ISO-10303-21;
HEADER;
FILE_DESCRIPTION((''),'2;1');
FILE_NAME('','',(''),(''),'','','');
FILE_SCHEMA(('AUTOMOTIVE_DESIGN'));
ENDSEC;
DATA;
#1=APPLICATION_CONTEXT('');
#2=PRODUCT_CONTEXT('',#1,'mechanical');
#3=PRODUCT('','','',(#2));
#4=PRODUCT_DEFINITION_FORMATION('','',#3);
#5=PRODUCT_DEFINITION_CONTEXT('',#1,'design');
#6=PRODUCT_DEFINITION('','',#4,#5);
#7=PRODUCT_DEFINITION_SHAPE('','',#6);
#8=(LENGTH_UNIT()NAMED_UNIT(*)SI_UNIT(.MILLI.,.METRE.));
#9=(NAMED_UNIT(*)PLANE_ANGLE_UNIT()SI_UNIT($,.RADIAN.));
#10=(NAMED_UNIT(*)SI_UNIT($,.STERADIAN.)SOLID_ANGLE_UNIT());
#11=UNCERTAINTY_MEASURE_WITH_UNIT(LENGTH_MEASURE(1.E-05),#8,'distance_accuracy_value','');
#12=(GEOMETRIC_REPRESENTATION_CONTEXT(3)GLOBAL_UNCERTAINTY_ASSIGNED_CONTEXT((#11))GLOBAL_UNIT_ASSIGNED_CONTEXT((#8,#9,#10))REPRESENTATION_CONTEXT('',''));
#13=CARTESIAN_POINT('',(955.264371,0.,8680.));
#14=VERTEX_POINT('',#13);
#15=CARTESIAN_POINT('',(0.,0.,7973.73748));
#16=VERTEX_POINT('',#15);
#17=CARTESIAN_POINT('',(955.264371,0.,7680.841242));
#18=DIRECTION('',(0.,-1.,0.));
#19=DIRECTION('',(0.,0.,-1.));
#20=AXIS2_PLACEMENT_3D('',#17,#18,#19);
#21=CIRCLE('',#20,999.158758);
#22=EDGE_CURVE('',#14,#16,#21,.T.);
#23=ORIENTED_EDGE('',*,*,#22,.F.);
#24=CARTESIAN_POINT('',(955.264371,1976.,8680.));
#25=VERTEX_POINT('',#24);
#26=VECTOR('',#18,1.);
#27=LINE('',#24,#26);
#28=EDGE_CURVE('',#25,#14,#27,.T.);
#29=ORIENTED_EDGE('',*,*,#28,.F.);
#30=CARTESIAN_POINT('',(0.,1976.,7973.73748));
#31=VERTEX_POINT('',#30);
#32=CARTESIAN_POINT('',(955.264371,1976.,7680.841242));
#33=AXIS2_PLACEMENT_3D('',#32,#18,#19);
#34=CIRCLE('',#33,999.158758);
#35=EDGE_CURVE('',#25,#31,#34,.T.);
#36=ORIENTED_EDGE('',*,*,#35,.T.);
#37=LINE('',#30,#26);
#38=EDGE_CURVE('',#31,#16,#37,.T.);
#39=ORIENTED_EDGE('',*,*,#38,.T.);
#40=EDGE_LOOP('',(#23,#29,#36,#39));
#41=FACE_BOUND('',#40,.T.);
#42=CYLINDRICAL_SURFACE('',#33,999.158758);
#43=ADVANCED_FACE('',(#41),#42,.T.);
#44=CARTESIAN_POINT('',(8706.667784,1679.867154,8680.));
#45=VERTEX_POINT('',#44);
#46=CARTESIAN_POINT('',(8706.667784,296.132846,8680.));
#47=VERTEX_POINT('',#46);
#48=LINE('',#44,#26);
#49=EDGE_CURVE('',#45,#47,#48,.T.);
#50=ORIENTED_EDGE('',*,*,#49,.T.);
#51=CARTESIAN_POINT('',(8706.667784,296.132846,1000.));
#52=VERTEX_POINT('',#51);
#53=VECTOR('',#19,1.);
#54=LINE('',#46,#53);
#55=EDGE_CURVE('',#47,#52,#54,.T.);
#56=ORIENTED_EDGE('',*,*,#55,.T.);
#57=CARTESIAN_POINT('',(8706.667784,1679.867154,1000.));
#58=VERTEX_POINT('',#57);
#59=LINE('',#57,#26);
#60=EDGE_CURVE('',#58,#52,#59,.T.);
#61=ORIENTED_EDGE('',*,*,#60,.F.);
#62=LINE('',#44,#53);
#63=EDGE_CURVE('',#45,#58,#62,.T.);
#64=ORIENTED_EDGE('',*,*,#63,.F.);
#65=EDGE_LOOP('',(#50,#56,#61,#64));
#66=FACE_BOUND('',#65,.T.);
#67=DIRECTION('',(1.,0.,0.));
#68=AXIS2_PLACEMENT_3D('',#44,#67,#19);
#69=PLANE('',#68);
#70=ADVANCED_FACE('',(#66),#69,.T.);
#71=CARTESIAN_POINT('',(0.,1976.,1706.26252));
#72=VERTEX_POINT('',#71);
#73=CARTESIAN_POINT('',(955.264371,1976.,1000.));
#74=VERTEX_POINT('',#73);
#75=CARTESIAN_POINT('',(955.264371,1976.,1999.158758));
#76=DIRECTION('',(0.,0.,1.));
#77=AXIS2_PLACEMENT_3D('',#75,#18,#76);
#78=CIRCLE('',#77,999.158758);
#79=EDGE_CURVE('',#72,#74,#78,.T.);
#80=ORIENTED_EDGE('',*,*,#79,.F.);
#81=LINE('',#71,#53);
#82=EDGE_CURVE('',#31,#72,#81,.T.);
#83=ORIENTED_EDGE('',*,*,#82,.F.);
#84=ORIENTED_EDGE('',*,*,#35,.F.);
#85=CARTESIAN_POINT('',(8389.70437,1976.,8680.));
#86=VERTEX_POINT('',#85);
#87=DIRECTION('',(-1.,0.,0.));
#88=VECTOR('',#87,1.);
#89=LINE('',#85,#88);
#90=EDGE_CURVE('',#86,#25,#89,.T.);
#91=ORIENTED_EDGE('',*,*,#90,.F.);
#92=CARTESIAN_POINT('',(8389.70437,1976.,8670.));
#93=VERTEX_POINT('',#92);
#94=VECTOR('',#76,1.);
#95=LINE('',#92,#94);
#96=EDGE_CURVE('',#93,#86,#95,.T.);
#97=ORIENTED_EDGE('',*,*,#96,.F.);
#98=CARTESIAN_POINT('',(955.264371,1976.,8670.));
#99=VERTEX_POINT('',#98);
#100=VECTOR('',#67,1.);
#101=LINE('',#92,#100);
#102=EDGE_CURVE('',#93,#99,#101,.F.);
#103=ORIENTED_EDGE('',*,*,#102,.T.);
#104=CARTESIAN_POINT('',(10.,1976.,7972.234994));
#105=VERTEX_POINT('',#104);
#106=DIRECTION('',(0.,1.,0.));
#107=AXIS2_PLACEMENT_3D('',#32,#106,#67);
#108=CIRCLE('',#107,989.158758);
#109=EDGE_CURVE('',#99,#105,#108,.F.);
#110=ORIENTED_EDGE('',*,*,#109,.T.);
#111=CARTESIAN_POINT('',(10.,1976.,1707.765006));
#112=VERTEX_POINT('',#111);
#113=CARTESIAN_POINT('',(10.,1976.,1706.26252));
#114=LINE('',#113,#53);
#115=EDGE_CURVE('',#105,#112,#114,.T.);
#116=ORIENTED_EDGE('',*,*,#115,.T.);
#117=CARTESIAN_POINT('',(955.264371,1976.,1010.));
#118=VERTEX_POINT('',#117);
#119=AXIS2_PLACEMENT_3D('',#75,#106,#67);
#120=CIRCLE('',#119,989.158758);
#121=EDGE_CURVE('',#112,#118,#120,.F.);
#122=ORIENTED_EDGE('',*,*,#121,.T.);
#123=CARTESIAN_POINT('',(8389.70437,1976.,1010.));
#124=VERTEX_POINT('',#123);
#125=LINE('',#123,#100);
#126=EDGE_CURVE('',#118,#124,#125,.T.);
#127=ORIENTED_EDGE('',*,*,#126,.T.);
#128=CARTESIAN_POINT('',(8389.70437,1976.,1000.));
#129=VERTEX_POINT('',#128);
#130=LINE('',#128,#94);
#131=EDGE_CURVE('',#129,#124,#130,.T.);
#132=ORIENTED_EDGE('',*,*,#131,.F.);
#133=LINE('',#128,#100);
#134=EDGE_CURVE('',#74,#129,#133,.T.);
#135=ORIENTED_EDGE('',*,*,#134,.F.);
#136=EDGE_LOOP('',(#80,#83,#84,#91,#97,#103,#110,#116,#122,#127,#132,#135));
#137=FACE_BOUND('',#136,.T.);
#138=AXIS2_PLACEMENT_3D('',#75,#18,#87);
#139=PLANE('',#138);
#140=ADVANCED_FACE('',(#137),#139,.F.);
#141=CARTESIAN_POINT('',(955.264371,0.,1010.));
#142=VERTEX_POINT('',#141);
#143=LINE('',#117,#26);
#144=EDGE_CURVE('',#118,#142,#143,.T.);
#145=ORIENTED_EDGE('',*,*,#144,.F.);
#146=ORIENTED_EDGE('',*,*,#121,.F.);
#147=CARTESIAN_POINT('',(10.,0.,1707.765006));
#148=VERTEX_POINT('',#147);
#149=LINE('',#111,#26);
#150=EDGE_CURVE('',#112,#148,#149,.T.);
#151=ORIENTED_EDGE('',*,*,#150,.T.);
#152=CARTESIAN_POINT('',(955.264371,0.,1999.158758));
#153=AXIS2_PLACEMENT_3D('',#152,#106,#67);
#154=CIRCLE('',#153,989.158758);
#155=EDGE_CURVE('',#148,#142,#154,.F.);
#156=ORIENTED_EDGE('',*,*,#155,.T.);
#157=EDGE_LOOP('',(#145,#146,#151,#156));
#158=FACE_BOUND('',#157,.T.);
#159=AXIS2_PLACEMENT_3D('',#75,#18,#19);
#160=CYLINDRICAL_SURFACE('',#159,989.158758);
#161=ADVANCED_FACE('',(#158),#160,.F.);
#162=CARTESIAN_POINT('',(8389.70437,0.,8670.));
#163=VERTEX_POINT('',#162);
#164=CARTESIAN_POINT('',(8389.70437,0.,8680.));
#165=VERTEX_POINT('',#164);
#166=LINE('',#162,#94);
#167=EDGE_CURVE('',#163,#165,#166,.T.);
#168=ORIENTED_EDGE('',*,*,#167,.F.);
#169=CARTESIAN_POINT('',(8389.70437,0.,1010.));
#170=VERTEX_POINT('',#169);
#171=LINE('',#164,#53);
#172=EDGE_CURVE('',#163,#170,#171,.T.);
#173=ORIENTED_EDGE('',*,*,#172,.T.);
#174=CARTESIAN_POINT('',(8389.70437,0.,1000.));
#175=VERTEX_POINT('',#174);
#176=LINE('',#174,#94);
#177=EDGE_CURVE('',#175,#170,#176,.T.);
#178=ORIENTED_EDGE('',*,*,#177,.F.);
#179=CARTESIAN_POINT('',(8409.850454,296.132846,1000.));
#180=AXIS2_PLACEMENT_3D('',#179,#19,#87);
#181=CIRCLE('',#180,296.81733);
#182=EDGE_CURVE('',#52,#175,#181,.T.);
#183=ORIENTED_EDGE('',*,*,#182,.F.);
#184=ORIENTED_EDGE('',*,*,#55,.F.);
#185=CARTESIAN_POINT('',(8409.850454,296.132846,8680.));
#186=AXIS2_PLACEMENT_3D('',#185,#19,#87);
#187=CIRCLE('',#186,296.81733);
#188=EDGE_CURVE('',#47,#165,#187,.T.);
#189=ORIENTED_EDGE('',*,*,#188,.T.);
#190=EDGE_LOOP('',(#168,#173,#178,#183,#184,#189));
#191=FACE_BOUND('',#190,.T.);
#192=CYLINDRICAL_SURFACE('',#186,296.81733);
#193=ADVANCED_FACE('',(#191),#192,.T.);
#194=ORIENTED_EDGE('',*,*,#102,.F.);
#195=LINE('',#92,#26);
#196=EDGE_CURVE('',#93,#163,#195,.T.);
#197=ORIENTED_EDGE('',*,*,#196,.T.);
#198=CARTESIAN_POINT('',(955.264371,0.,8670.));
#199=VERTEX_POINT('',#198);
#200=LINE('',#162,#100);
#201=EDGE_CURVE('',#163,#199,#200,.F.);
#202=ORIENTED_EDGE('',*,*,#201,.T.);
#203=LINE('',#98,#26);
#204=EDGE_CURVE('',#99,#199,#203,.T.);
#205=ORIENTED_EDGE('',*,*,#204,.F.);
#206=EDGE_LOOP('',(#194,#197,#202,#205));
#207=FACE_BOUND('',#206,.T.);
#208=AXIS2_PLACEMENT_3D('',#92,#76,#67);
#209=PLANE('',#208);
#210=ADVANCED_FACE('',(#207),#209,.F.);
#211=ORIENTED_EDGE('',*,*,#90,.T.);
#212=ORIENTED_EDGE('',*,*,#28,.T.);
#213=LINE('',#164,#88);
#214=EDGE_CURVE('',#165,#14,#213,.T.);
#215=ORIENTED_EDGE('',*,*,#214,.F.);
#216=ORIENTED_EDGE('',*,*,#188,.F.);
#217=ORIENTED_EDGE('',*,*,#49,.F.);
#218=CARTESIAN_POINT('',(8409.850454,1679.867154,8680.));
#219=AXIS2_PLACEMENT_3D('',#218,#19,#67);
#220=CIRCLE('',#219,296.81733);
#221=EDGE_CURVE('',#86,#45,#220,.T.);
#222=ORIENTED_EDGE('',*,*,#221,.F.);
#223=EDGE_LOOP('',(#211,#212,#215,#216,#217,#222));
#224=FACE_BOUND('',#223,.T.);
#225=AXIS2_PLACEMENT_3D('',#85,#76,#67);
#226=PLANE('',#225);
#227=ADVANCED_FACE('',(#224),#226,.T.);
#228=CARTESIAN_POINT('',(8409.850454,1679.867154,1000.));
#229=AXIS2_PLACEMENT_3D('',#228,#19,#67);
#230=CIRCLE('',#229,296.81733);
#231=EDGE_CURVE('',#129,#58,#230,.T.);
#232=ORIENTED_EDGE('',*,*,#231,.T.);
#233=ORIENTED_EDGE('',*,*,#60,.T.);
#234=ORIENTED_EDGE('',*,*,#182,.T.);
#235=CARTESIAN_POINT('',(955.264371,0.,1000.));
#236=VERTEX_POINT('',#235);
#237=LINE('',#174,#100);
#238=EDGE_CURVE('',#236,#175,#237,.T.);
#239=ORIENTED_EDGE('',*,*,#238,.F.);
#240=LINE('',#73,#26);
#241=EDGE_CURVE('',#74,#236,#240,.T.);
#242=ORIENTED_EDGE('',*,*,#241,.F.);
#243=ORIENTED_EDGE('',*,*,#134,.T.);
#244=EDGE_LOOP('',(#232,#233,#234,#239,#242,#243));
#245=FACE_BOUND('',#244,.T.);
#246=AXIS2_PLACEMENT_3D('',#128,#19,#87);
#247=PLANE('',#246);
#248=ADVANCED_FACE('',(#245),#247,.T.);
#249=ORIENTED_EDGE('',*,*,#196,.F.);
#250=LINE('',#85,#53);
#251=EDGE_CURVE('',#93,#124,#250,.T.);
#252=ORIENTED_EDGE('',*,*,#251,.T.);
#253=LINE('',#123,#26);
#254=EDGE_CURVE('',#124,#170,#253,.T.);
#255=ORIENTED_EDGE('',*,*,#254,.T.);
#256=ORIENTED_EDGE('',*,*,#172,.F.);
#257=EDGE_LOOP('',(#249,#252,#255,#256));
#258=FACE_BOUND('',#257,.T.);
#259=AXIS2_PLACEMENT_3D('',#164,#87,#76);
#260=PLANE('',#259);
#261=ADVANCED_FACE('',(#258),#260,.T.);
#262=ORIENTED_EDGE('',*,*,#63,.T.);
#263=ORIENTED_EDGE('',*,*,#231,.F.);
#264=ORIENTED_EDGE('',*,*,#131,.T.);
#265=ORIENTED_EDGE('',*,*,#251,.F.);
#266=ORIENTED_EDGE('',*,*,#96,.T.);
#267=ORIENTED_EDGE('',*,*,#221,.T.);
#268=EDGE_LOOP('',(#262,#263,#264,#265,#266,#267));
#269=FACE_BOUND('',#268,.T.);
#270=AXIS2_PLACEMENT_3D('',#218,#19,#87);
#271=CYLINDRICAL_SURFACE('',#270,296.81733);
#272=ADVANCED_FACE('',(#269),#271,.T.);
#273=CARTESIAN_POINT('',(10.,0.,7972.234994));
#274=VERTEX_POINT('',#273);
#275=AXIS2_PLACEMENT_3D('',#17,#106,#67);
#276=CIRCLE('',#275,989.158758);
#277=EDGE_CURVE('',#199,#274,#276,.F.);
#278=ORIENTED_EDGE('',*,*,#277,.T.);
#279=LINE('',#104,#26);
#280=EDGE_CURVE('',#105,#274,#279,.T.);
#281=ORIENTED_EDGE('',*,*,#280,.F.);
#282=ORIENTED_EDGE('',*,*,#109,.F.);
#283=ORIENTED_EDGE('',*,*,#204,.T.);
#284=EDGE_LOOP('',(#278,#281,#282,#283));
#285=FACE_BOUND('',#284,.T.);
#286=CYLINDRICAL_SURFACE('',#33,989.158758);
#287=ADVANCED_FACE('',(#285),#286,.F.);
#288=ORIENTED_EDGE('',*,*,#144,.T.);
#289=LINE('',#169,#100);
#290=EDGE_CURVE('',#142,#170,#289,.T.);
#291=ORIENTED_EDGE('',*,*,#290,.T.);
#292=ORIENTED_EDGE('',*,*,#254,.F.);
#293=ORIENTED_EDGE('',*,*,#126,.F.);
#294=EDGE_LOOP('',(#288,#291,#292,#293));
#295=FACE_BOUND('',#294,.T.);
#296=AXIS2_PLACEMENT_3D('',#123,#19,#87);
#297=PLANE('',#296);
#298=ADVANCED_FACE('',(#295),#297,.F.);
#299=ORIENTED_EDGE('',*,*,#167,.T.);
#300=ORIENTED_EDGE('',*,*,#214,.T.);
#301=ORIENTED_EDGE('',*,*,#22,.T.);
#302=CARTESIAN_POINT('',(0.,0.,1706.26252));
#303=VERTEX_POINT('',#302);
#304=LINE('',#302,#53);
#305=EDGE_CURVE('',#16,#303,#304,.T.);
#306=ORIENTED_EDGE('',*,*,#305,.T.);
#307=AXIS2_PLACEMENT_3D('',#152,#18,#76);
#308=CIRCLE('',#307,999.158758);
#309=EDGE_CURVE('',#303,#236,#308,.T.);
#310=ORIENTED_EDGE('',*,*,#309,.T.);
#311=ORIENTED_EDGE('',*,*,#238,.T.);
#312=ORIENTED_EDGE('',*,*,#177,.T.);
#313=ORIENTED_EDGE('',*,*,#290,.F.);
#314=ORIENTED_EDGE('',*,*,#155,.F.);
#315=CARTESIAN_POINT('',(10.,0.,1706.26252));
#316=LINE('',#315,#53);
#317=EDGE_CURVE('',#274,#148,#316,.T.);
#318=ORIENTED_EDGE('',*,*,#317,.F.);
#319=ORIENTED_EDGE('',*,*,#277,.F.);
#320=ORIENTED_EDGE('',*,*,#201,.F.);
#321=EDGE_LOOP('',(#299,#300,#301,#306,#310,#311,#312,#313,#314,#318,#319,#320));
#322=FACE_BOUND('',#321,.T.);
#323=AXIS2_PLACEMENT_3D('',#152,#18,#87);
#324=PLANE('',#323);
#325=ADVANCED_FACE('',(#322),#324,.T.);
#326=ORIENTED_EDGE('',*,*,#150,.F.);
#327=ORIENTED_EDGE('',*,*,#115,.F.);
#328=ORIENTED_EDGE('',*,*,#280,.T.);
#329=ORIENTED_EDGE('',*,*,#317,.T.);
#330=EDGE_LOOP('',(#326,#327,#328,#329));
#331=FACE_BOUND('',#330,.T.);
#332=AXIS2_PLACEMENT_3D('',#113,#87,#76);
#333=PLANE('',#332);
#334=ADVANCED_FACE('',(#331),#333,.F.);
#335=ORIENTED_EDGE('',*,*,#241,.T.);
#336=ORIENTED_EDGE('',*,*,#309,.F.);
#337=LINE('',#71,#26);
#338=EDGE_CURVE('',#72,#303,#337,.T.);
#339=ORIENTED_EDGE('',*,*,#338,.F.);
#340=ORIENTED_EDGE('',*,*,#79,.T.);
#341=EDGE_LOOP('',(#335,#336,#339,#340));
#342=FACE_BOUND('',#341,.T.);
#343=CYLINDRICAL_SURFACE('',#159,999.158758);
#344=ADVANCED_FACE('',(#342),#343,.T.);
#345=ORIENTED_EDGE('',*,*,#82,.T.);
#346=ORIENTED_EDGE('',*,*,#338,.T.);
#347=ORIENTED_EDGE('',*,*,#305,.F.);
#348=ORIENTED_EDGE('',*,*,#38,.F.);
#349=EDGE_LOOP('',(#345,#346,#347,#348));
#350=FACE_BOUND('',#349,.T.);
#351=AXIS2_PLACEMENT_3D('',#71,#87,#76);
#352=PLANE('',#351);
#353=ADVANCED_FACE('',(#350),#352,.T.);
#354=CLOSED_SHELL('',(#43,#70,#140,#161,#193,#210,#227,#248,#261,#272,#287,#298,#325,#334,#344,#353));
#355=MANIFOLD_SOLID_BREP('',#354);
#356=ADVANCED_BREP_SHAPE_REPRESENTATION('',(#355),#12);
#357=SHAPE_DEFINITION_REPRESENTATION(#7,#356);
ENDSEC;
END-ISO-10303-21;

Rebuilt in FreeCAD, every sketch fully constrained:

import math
import FreeCAD as App
import Part
import Sketcher
from FreeCAD import Vector

doc = App.newDocument("Part")
body = doc.addObject("PartDesign::Body", "Body")

# Sketch on XZ plane
sketch1 = body.newObject("Sketcher::SketchObject", "Sketch")
sketch1.AttachmentSupport = (doc.getObject("XZ_Plane"), [""])
sketch1.MapMode = "FlatFace"
sketch1.addGeometry([
    Part.LineSegment(Vector(955, 8680, 0), Vector(8390, 8680, 0)),  # 0
    Part.LineSegment(Vector(8390, 8680, 0), Vector(8390, 8670, 0)),  # 1
    Part.LineSegment(Vector(8390, 8670, 0), Vector(955, 8670, 0)),  # 2
    Part.ArcOfCircle(Part.Circle(Vector(955, 7681, 0), Vector(0, 0, 1), 989), math.radians(90), math.radians(163)),  # 3
    Part.LineSegment(Vector(10, 7972, 0), Vector(10, 1708, 0)),  # 4
    Part.ArcOfCircle(Part.Circle(Vector(955, 1999, 0), Vector(0, 0, 1), 989), math.radians(-163), math.radians(-90)),  # 5
    Part.LineSegment(Vector(955, 1010, 0), Vector(8390, 1010, 0)),  # 6
    Part.LineSegment(Vector(8390, 1010, 0), Vector(8390, 1000, 0)),  # 7
    Part.LineSegment(Vector(8390, 1000, 0), Vector(955, 1000, 0)),  # 8
    Part.ArcOfCircle(Part.Circle(Vector(955, 1999, 0), Vector(0, 0, 1), 999), math.radians(-163), math.radians(-90)),  # 9
    Part.LineSegment(Vector(0, 1706, 0), Vector(0, 7974, 0)),  # 10
    Part.ArcOfCircle(Part.Circle(Vector(955, 7681, 0), Vector(0, 0, 1), 999), math.radians(90), math.radians(163)),  # 11
], False)
sketch1.addConstraint([
    Sketcher.Constraint("Coincident", 0, 2, 1, 1),
    Sketcher.Constraint("Coincident", 1, 2, 2, 1),
    Sketcher.Constraint("Coincident", 2, 2, 3, 1),
    Sketcher.Constraint("Coincident", 3, 2, 4, 1),
    Sketcher.Constraint("Coincident", 4, 2, 5, 1),
    Sketcher.Constraint("Coincident", 5, 2, 6, 1),
    Sketcher.Constraint("Coincident", 6, 2, 7, 1),
    Sketcher.Constraint("Coincident", 7, 2, 8, 1),
    Sketcher.Constraint("Coincident", 8, 2, 9, 2),
    Sketcher.Constraint("Coincident", 9, 1, 10, 1),
    Sketcher.Constraint("Coincident", 10, 2, 11, 2),
    Sketcher.Constraint("Coincident", 11, 1, 0, 1),
    Sketcher.Constraint("Horizontal", 0),
    Sketcher.Constraint("Vertical", 1),
    Sketcher.Constraint("Horizontal", 2),
    Sketcher.Constraint("Vertical", 4),
    Sketcher.Constraint("Horizontal", 6),
    Sketcher.Constraint("Vertical", 7),
    Sketcher.Constraint("Horizontal", 8),
    Sketcher.Constraint("Vertical", 10),
    Sketcher.Constraint("Coincident", 9, 3, 5, 3),
    Sketcher.Constraint("Coincident", 11, 3, 3, 3),
    Sketcher.Constraint("Equal", 3, 5),
    Sketcher.Constraint("Equal", 9, 11),
    Sketcher.Constraint("PointOnObject", 10, 2, -2),
    Sketcher.Constraint("Vertical", 3, 3, 5, 3),
    Sketcher.Constraint("Vertical", 11, 3, 2, 2),
    Sketcher.Constraint("Vertical", 1, 2, 6, 2),
    Sketcher.Constraint("Equal", 0, 2),
    Sketcher.Constraint("Equal", 2, 6),
    Sketcher.Constraint("Equal", 6, 8),
    Sketcher.Constraint("DistanceY", 1, 2, 1, 1, 10.0),
    Sketcher.Constraint("DistanceY", -1, 1, 0, 2, 8680.0),
    Sketcher.Constraint("DistanceX", -1, 1, 4, 2, 10.0),
    Sketcher.Constraint("DistanceY", -1, 1, 5, 2, 1010.0),
    Sketcher.Constraint("DistanceX", 0, 1, 0, 2, 7434.44),
    Sketcher.Constraint("Radius", 3, 989.158758),
    Sketcher.Constraint("DistanceY", 10, 1, 10, 2, 6267.47496),
])
pad1 = body.newObject("PartDesign::Pad", "Pad")
pad1.Profile = sketch1
pad1.Length = 1976
pad1.Reversed = True

# Sketch on XY plane
sketch2 = body.newObject("Sketcher::SketchObject", "Sketch001")
sketch2.AttachmentSupport = (doc.getObject("XY_Plane"), [""])
sketch2.MapMode = "FlatFace"
sketch2.AttachmentOffset = App.Placement(Vector(0, 0, 1000), App.Rotation())
sketch2.addGeometry([
    Part.LineSegment(Vector(8707, 1680, 0), Vector(8707, 296, 0)),
    Part.ArcOfCircle(Part.Circle(Vector(8410, 296, 0), Vector(0, 0, 1), 297), math.radians(-94), math.radians(0)),
    Part.LineSegment(Vector(8390, 0, 0), Vector(8390, 1976, 0)),
    Part.ArcOfCircle(Part.Circle(Vector(8410, 1680, 0), Vector(0, 0, 1), 297), math.radians(0), math.radians(94)),
], False)
sketch2.addConstraint([
    Sketcher.Constraint("Tangent", 0, 2, 1, 2),
    Sketcher.Constraint("Coincident", 1, 1, 2, 1),
    Sketcher.Constraint("Coincident", 2, 2, 3, 2),
    Sketcher.Constraint("Tangent", 3, 1, 0, 1),
    Sketcher.Constraint("Vertical", 0),
    Sketcher.Constraint("Vertical", 2),
    Sketcher.Constraint("Equal", 1, 3),
    Sketcher.Constraint("PointOnObject", 1, 1, -1),
    Sketcher.Constraint("DistanceY", 2, 1, 2, 2, 1976.0),
    Sketcher.Constraint("Radius", 1, 296.81733),
    Sketcher.Constraint("DistanceY", 0, 2, 0, 1, 1383.734307),
    Sketcher.Constraint("DistanceX", -1, 1, 2, 2, 8389.70437),
])
pad2 = body.newObject("PartDesign::Pad", "Pad001")
pad2.Profile = sketch2
pad2.Length = 7680

doc.recompute()
